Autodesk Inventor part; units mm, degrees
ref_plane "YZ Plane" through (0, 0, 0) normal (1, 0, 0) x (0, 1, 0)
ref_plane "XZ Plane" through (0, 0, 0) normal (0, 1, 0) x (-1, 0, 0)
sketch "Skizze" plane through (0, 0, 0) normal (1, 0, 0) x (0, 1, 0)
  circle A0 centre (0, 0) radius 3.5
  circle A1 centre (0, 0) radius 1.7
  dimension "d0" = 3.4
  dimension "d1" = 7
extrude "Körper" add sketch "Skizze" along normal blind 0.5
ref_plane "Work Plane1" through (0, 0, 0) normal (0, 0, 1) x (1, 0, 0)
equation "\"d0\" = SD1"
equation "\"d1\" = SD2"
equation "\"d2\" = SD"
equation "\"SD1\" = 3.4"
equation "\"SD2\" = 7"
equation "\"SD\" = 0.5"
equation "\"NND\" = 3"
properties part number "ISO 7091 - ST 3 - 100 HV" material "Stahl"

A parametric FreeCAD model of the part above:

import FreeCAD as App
import Part
import Sketcher

doc = App.newDocument("Part")
params = doc.addObject("Spreadsheet::Sheet", "Params")
for row, (alias, value) in enumerate([
    ("sketch1_diameter", "7 mm"),
    ("sketch1_diameter2", "3.4 mm"),
    ("pad1_length", "0.5 mm"),
], start=1):
    params.set(f"A{row}", alias)
    params.set(f"B{row}", "=" + value)
    params.setAlias(f"B{row}", alias)

body = doc.addObject("PartDesign::Body", "Body")

sketch1 = body.newObject("Sketcher::SketchObject", "Sketch")
sketch1.AttachmentSupport = (doc.getObject("YZ_Plane"), [""])
sketch1.MapMode = "FlatFace"
sketch1.addGeometry(Part.Circle(App.Vector(0, 0, 0), App.Vector(0, 0, 1), 3.5), False)
sketch1.addGeometry(Part.Circle(App.Vector(0, 0, 0), App.Vector(0, 0, 1), 1.7), False)
sketch1.addConstraint(Sketcher.Constraint("Coincident", 0, 3, -1, 1))
sketch1.addConstraint(Sketcher.Constraint("Coincident", 1, 3, -1, 1))
sketch1.addConstraint(Sketcher.Constraint("Diameter", 0, 7.0))
sketch1.addConstraint(Sketcher.Constraint("Diameter", 1, 3.4))
sketch1.setExpression("Constraints[2]", "Params.sketch1_diameter")
sketch1.setExpression("Constraints[3]", "Params.sketch1_diameter2")
pad1 = body.newObject("PartDesign::Pad", "Pad")
pad1.Profile = sketch1
pad1.setExpression("Length", "Params.pad1_length")

doc.recompute()
